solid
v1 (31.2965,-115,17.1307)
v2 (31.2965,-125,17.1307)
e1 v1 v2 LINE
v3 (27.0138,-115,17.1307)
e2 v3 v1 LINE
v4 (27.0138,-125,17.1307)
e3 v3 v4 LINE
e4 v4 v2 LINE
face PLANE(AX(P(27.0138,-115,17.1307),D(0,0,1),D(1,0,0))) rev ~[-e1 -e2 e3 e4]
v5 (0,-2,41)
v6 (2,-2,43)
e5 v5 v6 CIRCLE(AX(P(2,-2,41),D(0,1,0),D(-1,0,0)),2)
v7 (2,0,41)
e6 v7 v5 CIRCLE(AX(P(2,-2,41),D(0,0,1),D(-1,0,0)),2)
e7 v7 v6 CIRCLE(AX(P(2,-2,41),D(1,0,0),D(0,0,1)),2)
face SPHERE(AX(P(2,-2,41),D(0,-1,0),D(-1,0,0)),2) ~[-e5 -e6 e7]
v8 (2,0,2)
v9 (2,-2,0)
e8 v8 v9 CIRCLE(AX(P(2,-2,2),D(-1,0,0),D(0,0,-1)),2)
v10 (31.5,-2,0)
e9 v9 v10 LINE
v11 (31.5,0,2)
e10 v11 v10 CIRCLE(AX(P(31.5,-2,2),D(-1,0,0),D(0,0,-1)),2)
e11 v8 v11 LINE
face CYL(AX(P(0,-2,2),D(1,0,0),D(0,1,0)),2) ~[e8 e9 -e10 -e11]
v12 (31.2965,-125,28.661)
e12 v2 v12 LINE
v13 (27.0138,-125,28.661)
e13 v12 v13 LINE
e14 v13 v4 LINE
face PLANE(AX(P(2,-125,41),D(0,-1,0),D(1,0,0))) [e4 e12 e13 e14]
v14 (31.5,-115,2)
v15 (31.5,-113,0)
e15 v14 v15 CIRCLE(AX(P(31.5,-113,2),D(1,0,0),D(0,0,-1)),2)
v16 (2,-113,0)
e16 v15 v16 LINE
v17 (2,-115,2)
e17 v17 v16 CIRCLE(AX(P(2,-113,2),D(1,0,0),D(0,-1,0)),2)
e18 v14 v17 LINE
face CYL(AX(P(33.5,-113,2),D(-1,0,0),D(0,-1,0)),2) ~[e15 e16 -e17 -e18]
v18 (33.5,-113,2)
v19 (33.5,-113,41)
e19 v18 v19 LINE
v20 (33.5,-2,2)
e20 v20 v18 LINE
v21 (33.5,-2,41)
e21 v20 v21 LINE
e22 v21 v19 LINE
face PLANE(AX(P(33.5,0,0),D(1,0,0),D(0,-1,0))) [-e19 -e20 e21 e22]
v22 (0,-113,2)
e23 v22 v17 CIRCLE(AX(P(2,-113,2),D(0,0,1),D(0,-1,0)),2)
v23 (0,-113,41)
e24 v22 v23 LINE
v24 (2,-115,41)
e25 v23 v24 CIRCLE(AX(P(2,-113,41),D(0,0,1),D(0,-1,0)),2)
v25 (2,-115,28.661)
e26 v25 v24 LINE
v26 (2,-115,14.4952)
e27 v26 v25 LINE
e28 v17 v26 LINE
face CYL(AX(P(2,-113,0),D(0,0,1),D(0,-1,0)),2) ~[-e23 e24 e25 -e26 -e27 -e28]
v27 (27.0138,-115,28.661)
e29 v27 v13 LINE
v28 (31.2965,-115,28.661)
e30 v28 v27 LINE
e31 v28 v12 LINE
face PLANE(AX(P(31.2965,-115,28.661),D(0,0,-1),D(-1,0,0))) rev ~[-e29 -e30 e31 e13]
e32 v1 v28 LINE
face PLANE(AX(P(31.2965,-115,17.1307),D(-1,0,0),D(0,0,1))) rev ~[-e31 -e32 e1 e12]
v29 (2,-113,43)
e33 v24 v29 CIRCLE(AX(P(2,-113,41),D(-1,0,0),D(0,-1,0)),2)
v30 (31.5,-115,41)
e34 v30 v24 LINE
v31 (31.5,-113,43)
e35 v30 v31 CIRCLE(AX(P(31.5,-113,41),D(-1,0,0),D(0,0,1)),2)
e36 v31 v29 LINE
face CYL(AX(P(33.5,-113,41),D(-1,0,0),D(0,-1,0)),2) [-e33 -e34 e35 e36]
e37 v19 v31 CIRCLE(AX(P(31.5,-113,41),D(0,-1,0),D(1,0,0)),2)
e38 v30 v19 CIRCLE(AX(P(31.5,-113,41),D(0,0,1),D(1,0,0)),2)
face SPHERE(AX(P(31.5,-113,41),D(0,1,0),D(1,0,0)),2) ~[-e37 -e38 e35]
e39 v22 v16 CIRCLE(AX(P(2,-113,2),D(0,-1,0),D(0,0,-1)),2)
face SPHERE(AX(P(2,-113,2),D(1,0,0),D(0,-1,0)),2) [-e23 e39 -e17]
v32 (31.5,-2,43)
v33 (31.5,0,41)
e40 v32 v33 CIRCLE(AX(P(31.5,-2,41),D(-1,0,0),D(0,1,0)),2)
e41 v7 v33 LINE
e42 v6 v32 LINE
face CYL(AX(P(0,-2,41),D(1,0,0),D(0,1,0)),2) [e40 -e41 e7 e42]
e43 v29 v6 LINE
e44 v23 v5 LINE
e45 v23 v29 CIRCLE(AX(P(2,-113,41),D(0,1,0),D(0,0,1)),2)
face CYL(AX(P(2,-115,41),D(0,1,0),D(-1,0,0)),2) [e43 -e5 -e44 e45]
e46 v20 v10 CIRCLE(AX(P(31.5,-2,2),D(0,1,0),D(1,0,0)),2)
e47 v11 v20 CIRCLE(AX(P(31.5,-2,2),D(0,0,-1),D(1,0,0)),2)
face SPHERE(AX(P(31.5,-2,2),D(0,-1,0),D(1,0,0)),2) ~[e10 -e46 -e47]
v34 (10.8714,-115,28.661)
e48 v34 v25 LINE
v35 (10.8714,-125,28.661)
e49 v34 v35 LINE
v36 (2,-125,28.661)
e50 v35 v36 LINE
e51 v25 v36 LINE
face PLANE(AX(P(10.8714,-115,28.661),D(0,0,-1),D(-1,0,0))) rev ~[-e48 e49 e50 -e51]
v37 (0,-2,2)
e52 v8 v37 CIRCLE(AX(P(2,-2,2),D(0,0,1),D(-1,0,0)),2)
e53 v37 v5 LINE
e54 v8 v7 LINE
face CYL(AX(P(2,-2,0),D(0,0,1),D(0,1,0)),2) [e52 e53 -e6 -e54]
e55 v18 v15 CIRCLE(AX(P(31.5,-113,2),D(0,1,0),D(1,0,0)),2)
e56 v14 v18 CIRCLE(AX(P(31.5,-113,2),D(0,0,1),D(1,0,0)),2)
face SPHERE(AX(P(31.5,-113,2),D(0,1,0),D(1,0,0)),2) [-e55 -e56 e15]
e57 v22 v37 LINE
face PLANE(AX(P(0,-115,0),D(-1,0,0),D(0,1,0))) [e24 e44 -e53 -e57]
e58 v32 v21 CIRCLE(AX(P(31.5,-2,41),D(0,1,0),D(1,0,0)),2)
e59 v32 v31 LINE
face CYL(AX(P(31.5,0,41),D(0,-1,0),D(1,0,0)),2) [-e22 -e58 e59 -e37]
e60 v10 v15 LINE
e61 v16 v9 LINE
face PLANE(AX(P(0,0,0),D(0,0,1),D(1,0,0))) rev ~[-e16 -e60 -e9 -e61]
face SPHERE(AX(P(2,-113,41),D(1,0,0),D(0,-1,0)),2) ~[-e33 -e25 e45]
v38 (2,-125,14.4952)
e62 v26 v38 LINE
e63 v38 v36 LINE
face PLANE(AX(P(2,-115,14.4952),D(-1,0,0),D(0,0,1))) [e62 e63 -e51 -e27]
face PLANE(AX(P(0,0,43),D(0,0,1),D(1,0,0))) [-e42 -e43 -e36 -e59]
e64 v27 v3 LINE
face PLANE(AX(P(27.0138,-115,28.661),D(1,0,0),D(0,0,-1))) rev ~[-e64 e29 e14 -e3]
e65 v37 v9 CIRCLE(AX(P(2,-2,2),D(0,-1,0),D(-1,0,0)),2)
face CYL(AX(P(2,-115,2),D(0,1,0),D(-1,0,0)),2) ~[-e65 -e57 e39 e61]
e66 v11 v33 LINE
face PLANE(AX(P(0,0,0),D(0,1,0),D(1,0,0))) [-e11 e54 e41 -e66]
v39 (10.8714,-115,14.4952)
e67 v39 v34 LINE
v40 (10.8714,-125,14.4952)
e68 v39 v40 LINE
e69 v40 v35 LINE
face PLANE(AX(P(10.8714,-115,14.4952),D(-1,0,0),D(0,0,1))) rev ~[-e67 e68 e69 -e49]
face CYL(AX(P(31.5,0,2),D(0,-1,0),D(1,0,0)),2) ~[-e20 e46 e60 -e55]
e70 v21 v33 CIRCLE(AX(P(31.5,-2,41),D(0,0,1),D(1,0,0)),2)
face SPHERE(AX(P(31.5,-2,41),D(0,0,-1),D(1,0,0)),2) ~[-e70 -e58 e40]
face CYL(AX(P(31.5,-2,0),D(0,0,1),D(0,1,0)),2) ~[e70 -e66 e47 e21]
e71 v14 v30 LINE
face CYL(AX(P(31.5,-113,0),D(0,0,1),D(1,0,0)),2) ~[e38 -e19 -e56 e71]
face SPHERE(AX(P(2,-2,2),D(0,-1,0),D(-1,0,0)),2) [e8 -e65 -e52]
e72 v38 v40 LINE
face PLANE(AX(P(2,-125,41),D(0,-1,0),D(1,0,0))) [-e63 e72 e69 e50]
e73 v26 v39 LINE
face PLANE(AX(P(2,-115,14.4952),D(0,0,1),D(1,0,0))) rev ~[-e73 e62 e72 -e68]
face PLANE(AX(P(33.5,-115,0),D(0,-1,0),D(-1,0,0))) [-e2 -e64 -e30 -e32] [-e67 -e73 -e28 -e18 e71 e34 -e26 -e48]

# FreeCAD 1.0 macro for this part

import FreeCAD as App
import Part
import Sketcher


def add_polygon(sketch, points):
    """Adds a closed chain of lines whose ends are joined by coincident constraints."""
    first, n = sketch.GeometryCount, len(points)
    for a, b in zip(points, points[1:] + points[:1]):
        sketch.addGeometry(Part.LineSegment(App.Vector(*a, 0), App.Vector(*b, 0)), False)
    for i in range(n):
        sketch.addConstraint(Sketcher.Constraint("Coincident", first + i, 2, first + (i + 1) % n, 1))

doc = App.newDocument("Part")
params = doc.addObject("Spreadsheet::Sheet", "Params")
for row, (alias, value) in enumerate([
    ("sketch1_height", "115 mm"),
    ("sketch1_width", "33.5 mm"),
    ("pad1_length", "43 mm"),
    ("fillet_radius", "2 mm"),
    ("pad2_length", "10 mm"),
], start=1):
    params.set(f"A{row}", alias)
    params.set(f"B{row}", "=" + value)
    params.setAlias(f"B{row}", alias)

body = doc.addObject("PartDesign::Body", "Body")

sketch1 = body.newObject("Sketcher::SketchObject", "Sketch")
sketch1.AttachmentSupport = (doc.getObject("XY_Plane"), [""])
sketch1.MapMode = "FlatFace"
add_polygon(sketch1, [(34, 0), (0, 0), (0, -115), (34, -115)])
sketch1.addConstraint(Sketcher.Constraint("Horizontal", 0))
sketch1.addConstraint(Sketcher.Constraint("Vertical", 1))
sketch1.addConstraint(Sketcher.Constraint("Horizontal", 2))
sketch1.addConstraint(Sketcher.Constraint("Vertical", 3))
sketch1.addConstraint(Sketcher.Constraint("Coincident", 0, 2, -1, 1))
sketch1.addConstraint(Sketcher.Constraint("DistanceY", 1, 2, 1, 1, 115.0))
sketch1.addConstraint(Sketcher.Constraint("DistanceX", 0, 2, 0, 1, 33.5))
sketch1.setExpression("Constraints[9]", "Params.sketch1_height")
sketch1.setExpression("Constraints[10]", "Params.sketch1_width")
pad1 = body.newObject("PartDesign::Pad", "Pad")
pad1.Profile = sketch1
pad1.setExpression("Length", "Params.pad1_length")
doc.recompute()

fillet = body.newObject("PartDesign::Fillet", "Fillet")
fillet.Base = (pad1, ["Edge1"])
fillet.UseAllEdges = True
fillet.setExpression("Radius", "Params.fillet_radius")

sketch2 = body.newObject("Sketcher::SketchObject", "Sketch001")
sketch2.AttachmentSupport = (doc.getObject("XZ_Plane"), [""])
sketch2.MapMode = "FlatFace"
sketch2.AttachmentOffset = App.Placement(App.Vector(0, 0, 115), App.Rotation())
add_polygon(sketch2, [(2, 28.7), (2, 14.5), (10.9, 14.5), (10.9, 28.7)])
add_polygon(sketch2, [(27, 28.7), (27, 17.1), (31.3, 17.1), (31.3, 28.7)])
sketch2.addConstraint(Sketcher.Constraint("Vertical", 0))
sketch2.addConstraint(Sketcher.Constraint("Horizontal", 1))
sketch2.addConstraint(Sketcher.Constraint("Vertical", 2))
sketch2.addConstraint(Sketcher.Constraint("Horizontal", 3))
sketch2.addConstraint(Sketcher.Constraint("Vertical", 4))
sketch2.addConstraint(Sketcher.Constraint("Horizontal", 5))
sketch2.addConstraint(Sketcher.Constraint("Vertical", 6))
sketch2.addConstraint(Sketcher.Constraint("Horizontal", 7))
sketch2.addConstraint(Sketcher.Constraint("Horizontal", 3, 2, 6, 2))
sketch2.addConstraint(Sketcher.Constraint("DistanceX", -1, 1, 0, 2, 2.0))
sketch2.addConstraint(Sketcher.Constraint("DistanceX", 1, 1, 1, 2, 8.8714))
sketch2.addConstraint(Sketcher.Constraint("DistanceX", 5, 1, 5, 2, 4.2827))
sketch2.addConstraint(Sketcher.Constraint("DistanceY", 0, 2, 0, 1, 14.1658))
sketch2.addConstraint(Sketcher.Constraint("DistanceY", 4, 2, 4, 1, 11.5303))
sketch2.addConstraint(Sketcher.Constraint("DistanceY", -1, 1, 2, 2, 28.661))
sketch2.addConstraint(Sketcher.Constraint("DistanceX", 1, 2, 5, 2, 20.425))
pad2 = body.newObject("PartDesign::Pad", "Pad001")
pad2.Profile = sketch2
pad2.setExpression("Length", "Params.pad2_length")

doc.recompute()
